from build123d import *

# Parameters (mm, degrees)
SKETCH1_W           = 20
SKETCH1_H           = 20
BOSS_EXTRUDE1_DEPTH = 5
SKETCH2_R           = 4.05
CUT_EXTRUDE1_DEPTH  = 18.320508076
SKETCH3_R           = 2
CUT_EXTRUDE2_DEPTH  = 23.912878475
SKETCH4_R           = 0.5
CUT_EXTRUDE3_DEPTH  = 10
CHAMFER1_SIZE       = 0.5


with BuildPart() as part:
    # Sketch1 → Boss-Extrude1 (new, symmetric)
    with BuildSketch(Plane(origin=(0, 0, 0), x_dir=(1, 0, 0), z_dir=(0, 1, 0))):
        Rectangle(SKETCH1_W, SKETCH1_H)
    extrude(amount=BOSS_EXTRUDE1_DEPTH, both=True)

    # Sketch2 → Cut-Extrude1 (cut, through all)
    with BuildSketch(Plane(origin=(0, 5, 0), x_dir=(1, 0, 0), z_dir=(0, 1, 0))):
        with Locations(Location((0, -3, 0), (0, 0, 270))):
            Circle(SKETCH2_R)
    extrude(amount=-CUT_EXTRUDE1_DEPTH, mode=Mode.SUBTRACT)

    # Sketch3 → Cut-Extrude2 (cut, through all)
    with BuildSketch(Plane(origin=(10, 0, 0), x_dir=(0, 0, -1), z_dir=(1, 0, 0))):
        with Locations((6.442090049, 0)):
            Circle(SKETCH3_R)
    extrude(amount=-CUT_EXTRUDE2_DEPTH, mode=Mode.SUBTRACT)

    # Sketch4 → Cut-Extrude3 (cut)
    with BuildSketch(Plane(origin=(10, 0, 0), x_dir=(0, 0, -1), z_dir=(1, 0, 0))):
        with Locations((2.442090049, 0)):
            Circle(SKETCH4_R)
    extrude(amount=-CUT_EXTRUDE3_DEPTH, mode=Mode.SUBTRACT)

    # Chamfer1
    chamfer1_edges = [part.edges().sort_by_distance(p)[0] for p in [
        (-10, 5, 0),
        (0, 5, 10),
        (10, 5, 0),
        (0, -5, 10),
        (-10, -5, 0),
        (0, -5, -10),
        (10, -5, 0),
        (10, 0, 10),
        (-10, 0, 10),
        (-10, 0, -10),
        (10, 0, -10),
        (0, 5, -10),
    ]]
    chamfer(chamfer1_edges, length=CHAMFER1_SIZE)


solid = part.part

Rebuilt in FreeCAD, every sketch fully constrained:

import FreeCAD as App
import Part
import Sketcher

V = App.Vector


def edges_at(feature, points):
    """Names of the edges that pass closest to the given points."""
    edges = feature.Shape.Edges
    near = lambda p: min(range(len(edges)), key=lambda i: edges[i].distToShape(Part.Vertex(*p))[0])
    return sorted({f"Edge{near(p) + 1}" for p in points})


def add_polygon(sketch, points):
    """Adds a closed chain of lines whose ends are joined by coincident constraints."""
    first, n = sketch.GeometryCount, len(points)
    for a, b in zip(points, points[1:] + points[:1]):
        sketch.addGeometry(Part.LineSegment(App.Vector(*a, 0), App.Vector(*b, 0)), False)
    for i in range(n):
        sketch.addConstraint(Sketcher.Constraint("Coincident", first + i, 2, first + (i + 1) % n, 1))

doc = App.newDocument("Part")
params = doc.addObject("Spreadsheet::Sheet", "Params")
for row, (alias, value) in enumerate([
    ("sketch1_width", "20 mm"),
    ("pad1_length", "10 mm"),
    ("sketch2_diameter", "8.1 mm"),
    ("sketch3_diameter", "4 mm"),
    ("sketch4_diameter", "1 mm"),
    ("pocket3_length", "10 mm"),
    ("chamfer_size", "0.5 mm"),
], start=1):
    params.set(f"A{row}", alias)
    params.set(f"B{row}", "=" + value)
    params.setAlias(f"B{row}", alias)

body = doc.addObject("PartDesign::Body", "Body")

# Sketch on XZ plane
sketch1 = body.newObject("Sketcher::SketchObject", "Sketch")
sketch1.AttachmentSupport = (doc.getObject("XZ_Plane"), [""])
sketch1.MapMode = "FlatFace"
add_polygon(sketch1, [(-10, -10), (-10, 10), (10, 10), (10, -10)])  # lines 0-3
sketch1.addConstraint(Sketcher.Constraint("Vertical", 0))
sketch1.addConstraint(Sketcher.Constraint("Horizontal", 1))
sketch1.addConstraint(Sketcher.Constraint("Vertical", 2))
sketch1.addConstraint(Sketcher.Constraint("Horizontal", 3))
sketch1.addConstraint(Sketcher.Constraint("Symmetric", 0, 2, 2, 2, -1, 1))
sketch1.addConstraint(Sketcher.Constraint("Equal", 3, 0))
sketch1.addConstraint(Sketcher.Constraint("DistanceX", 1, 1, 1, 2, 20.0))
sketch1.setExpression("Constraints[10]", "Params.sketch1_width")
pad1 = body.newObject("PartDesign::Pad", "Pad")
pad1.Profile = sketch1
pad1.setExpression("Length", "Params.pad1_length")
pad1.Midplane = True

# Sketch on XZ plane
sketch2 = body.newObject("Sketcher::SketchObject", "Sketch001")
sketch2.AttachmentSupport = (doc.getObject("XZ_Plane"), [""])
sketch2.MapMode = "FlatFace"
sketch2.AttachmentOffset = App.Placement(V(0, 0, -5), App.Rotation())
sketch2.addGeometry(Part.Circle(V(0, 3, 0), V(0, 0, 1), 4), False)
sketch2.addConstraint(Sketcher.Constraint("PointOnObject", 0, 3, -2))
sketch2.addConstraint(Sketcher.Constraint("Diameter", 0, 8.1))
sketch2.addConstraint(Sketcher.Constraint("DistanceY", -1, 1, 0, 3, 3.0))
sketch2.setExpression("Constraints[1]", "Params.sketch2_diameter")
pocket1 = body.newObject("PartDesign::Pocket", "Pocket")
pocket1.Profile = sketch2
pocket1.Type = "ThroughAll"
pocket1.Reversed = True

# Sketch on YZ plane
sketch3 = body.newObject("Sketcher::SketchObject", "Sketch002")
sketch3.AttachmentSupport = (doc.getObject("YZ_Plane"), [""])
sketch3.MapMode = "FlatFace"
sketch3.AttachmentOffset = App.Placement(V(0, 0, 10), App.Rotation())
sketch3.addGeometry(Part.Circle(V(0, -6.4, 0), V(0, 0, 1), 2), False)
sketch3.addConstraint(Sketcher.Constraint("PointOnObject", 0, 3, -2))
sketch3.addConstraint(Sketcher.Constraint("Diameter", 0, 4.0))
sketch3.addConstraint(Sketcher.Constraint("DistanceY", 0, 3, -1, 1, 6.44209))
sketch3.setExpression("Constraints[1]", "Params.sketch3_diameter")
pocket2 = body.newObject("PartDesign::Pocket", "Pocket001")
pocket2.Profile = sketch3
pocket2.Type = "ThroughAll"

# Sketch on YZ plane
sketch4 = body.newObject("Sketcher::SketchObject", "Sketch003")
sketch4.AttachmentSupport = (doc.getObject("YZ_Plane"), [""])
sketch4.MapMode = "FlatFace"
sketch4.AttachmentOffset = App.Placement(V(0, 0, 10), App.Rotation())
sketch4.addGeometry(Part.Circle(V(0, -2.4, 0), V(0, 0, 1), 0.5), False)
sketch4.addConstraint(Sketcher.Constraint("PointOnObject", 0, 3, -2))
sketch4.addConstraint(Sketcher.Constraint("Diameter", 0, 1.0))
sketch4.addConstraint(Sketcher.Constraint("DistanceY", 0, 3, -1, 1, 2.44209))
sketch4.setExpression("Constraints[1]", "Params.sketch4_diameter")
pocket3 = body.newObject("PartDesign::Pocket", "Pocket002")
pocket3.Profile = sketch4
pocket3.setExpression("Length", "Params.pocket3_length")
doc.recompute()

chamfer = body.newObject("PartDesign::Chamfer", "Chamfer")
chamfer.Base = (pocket3, edges_at(pocket3, [
    (-10, 5, 0),
    (0, 5, 10),
    (10, 5, 0),
    (0, -5, 10),
    (-10, -5, 0),
    (0, -5, -10),
    (10, -5, 0),
    (10, 0, 10),
    (-10, 0, 10),
    (-10, 0, -10),
    (10, 0, -10),
    (0, 5, -10),
]))
chamfer.setExpression("Size", "Params.chamfer_size")

doc.recompute()
